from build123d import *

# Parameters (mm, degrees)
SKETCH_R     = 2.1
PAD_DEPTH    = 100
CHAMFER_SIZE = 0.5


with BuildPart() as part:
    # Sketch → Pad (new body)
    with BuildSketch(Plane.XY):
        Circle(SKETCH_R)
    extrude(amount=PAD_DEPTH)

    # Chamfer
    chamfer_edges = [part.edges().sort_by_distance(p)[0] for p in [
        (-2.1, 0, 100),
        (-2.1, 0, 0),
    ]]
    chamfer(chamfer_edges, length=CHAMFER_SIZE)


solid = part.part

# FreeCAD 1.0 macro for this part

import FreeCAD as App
import Part
import Sketcher
Q = App.Units.Quantity


def edges_at(feature, points):
    """Names of the edges that pass closest to the given points."""
    edges = feature.Shape.Edges
    near = lambda p: min(range(len(edges)), key=lambda i: edges[i].distToShape(Part.Vertex(*p))[0])
    return sorted({f"Edge{near(p) + 1}" for p in points})

doc = App.newDocument("Part")
params = doc.addObject("Spreadsheet::Sheet", "Params")
for row, (alias, value) in enumerate([
    ("sketch1_diameter", "4.2 mm"),
    ("pad1_length", "100 mm"),
    ("chamfer_size", "0.5 mm"),
], start=1):
    params.set(f"A{row}", alias)
    params.set(f"B{row}", "=" + value)
    params.setAlias(f"B{row}", alias)

body = doc.addObject("PartDesign::Body", "Body")

sketch1 = body.newObject("Sketcher::SketchObject", "Sketch")
sketch1.AttachmentSupport = (doc.getObject("XY_Plane"), [""])
sketch1.MapMode = "FlatFace"
sketch1.addGeometry(Part.Circle(App.Vector(0, 0, 0), App.Vector(0, 0, 1), 2.1), False)
sketch1.addConstraint([
    Sketcher.Constraint("Coincident", 0, 3, -1, 1),
    Sketcher.Constraint("Diameter", 0, Q("4.2 mm")),
])
sketch1.setExpression("Constraints[1]", "Params.sketch1_diameter")
pad1 = body.newObject("PartDesign::Pad", "Pad")
pad1.Profile = sketch1
pad1.setExpression("Length", "Params.pad1_length")
doc.recompute()

chamfer = body.newObject("PartDesign::Chamfer", "Chamfer")
chamfer.Base = (pad1, edges_at(pad1, [(-2.1, 0, 100), (-2.1, 0, 0)]))
chamfer.setExpression("Size", "Params.chamfer_size")

doc.recompute()
